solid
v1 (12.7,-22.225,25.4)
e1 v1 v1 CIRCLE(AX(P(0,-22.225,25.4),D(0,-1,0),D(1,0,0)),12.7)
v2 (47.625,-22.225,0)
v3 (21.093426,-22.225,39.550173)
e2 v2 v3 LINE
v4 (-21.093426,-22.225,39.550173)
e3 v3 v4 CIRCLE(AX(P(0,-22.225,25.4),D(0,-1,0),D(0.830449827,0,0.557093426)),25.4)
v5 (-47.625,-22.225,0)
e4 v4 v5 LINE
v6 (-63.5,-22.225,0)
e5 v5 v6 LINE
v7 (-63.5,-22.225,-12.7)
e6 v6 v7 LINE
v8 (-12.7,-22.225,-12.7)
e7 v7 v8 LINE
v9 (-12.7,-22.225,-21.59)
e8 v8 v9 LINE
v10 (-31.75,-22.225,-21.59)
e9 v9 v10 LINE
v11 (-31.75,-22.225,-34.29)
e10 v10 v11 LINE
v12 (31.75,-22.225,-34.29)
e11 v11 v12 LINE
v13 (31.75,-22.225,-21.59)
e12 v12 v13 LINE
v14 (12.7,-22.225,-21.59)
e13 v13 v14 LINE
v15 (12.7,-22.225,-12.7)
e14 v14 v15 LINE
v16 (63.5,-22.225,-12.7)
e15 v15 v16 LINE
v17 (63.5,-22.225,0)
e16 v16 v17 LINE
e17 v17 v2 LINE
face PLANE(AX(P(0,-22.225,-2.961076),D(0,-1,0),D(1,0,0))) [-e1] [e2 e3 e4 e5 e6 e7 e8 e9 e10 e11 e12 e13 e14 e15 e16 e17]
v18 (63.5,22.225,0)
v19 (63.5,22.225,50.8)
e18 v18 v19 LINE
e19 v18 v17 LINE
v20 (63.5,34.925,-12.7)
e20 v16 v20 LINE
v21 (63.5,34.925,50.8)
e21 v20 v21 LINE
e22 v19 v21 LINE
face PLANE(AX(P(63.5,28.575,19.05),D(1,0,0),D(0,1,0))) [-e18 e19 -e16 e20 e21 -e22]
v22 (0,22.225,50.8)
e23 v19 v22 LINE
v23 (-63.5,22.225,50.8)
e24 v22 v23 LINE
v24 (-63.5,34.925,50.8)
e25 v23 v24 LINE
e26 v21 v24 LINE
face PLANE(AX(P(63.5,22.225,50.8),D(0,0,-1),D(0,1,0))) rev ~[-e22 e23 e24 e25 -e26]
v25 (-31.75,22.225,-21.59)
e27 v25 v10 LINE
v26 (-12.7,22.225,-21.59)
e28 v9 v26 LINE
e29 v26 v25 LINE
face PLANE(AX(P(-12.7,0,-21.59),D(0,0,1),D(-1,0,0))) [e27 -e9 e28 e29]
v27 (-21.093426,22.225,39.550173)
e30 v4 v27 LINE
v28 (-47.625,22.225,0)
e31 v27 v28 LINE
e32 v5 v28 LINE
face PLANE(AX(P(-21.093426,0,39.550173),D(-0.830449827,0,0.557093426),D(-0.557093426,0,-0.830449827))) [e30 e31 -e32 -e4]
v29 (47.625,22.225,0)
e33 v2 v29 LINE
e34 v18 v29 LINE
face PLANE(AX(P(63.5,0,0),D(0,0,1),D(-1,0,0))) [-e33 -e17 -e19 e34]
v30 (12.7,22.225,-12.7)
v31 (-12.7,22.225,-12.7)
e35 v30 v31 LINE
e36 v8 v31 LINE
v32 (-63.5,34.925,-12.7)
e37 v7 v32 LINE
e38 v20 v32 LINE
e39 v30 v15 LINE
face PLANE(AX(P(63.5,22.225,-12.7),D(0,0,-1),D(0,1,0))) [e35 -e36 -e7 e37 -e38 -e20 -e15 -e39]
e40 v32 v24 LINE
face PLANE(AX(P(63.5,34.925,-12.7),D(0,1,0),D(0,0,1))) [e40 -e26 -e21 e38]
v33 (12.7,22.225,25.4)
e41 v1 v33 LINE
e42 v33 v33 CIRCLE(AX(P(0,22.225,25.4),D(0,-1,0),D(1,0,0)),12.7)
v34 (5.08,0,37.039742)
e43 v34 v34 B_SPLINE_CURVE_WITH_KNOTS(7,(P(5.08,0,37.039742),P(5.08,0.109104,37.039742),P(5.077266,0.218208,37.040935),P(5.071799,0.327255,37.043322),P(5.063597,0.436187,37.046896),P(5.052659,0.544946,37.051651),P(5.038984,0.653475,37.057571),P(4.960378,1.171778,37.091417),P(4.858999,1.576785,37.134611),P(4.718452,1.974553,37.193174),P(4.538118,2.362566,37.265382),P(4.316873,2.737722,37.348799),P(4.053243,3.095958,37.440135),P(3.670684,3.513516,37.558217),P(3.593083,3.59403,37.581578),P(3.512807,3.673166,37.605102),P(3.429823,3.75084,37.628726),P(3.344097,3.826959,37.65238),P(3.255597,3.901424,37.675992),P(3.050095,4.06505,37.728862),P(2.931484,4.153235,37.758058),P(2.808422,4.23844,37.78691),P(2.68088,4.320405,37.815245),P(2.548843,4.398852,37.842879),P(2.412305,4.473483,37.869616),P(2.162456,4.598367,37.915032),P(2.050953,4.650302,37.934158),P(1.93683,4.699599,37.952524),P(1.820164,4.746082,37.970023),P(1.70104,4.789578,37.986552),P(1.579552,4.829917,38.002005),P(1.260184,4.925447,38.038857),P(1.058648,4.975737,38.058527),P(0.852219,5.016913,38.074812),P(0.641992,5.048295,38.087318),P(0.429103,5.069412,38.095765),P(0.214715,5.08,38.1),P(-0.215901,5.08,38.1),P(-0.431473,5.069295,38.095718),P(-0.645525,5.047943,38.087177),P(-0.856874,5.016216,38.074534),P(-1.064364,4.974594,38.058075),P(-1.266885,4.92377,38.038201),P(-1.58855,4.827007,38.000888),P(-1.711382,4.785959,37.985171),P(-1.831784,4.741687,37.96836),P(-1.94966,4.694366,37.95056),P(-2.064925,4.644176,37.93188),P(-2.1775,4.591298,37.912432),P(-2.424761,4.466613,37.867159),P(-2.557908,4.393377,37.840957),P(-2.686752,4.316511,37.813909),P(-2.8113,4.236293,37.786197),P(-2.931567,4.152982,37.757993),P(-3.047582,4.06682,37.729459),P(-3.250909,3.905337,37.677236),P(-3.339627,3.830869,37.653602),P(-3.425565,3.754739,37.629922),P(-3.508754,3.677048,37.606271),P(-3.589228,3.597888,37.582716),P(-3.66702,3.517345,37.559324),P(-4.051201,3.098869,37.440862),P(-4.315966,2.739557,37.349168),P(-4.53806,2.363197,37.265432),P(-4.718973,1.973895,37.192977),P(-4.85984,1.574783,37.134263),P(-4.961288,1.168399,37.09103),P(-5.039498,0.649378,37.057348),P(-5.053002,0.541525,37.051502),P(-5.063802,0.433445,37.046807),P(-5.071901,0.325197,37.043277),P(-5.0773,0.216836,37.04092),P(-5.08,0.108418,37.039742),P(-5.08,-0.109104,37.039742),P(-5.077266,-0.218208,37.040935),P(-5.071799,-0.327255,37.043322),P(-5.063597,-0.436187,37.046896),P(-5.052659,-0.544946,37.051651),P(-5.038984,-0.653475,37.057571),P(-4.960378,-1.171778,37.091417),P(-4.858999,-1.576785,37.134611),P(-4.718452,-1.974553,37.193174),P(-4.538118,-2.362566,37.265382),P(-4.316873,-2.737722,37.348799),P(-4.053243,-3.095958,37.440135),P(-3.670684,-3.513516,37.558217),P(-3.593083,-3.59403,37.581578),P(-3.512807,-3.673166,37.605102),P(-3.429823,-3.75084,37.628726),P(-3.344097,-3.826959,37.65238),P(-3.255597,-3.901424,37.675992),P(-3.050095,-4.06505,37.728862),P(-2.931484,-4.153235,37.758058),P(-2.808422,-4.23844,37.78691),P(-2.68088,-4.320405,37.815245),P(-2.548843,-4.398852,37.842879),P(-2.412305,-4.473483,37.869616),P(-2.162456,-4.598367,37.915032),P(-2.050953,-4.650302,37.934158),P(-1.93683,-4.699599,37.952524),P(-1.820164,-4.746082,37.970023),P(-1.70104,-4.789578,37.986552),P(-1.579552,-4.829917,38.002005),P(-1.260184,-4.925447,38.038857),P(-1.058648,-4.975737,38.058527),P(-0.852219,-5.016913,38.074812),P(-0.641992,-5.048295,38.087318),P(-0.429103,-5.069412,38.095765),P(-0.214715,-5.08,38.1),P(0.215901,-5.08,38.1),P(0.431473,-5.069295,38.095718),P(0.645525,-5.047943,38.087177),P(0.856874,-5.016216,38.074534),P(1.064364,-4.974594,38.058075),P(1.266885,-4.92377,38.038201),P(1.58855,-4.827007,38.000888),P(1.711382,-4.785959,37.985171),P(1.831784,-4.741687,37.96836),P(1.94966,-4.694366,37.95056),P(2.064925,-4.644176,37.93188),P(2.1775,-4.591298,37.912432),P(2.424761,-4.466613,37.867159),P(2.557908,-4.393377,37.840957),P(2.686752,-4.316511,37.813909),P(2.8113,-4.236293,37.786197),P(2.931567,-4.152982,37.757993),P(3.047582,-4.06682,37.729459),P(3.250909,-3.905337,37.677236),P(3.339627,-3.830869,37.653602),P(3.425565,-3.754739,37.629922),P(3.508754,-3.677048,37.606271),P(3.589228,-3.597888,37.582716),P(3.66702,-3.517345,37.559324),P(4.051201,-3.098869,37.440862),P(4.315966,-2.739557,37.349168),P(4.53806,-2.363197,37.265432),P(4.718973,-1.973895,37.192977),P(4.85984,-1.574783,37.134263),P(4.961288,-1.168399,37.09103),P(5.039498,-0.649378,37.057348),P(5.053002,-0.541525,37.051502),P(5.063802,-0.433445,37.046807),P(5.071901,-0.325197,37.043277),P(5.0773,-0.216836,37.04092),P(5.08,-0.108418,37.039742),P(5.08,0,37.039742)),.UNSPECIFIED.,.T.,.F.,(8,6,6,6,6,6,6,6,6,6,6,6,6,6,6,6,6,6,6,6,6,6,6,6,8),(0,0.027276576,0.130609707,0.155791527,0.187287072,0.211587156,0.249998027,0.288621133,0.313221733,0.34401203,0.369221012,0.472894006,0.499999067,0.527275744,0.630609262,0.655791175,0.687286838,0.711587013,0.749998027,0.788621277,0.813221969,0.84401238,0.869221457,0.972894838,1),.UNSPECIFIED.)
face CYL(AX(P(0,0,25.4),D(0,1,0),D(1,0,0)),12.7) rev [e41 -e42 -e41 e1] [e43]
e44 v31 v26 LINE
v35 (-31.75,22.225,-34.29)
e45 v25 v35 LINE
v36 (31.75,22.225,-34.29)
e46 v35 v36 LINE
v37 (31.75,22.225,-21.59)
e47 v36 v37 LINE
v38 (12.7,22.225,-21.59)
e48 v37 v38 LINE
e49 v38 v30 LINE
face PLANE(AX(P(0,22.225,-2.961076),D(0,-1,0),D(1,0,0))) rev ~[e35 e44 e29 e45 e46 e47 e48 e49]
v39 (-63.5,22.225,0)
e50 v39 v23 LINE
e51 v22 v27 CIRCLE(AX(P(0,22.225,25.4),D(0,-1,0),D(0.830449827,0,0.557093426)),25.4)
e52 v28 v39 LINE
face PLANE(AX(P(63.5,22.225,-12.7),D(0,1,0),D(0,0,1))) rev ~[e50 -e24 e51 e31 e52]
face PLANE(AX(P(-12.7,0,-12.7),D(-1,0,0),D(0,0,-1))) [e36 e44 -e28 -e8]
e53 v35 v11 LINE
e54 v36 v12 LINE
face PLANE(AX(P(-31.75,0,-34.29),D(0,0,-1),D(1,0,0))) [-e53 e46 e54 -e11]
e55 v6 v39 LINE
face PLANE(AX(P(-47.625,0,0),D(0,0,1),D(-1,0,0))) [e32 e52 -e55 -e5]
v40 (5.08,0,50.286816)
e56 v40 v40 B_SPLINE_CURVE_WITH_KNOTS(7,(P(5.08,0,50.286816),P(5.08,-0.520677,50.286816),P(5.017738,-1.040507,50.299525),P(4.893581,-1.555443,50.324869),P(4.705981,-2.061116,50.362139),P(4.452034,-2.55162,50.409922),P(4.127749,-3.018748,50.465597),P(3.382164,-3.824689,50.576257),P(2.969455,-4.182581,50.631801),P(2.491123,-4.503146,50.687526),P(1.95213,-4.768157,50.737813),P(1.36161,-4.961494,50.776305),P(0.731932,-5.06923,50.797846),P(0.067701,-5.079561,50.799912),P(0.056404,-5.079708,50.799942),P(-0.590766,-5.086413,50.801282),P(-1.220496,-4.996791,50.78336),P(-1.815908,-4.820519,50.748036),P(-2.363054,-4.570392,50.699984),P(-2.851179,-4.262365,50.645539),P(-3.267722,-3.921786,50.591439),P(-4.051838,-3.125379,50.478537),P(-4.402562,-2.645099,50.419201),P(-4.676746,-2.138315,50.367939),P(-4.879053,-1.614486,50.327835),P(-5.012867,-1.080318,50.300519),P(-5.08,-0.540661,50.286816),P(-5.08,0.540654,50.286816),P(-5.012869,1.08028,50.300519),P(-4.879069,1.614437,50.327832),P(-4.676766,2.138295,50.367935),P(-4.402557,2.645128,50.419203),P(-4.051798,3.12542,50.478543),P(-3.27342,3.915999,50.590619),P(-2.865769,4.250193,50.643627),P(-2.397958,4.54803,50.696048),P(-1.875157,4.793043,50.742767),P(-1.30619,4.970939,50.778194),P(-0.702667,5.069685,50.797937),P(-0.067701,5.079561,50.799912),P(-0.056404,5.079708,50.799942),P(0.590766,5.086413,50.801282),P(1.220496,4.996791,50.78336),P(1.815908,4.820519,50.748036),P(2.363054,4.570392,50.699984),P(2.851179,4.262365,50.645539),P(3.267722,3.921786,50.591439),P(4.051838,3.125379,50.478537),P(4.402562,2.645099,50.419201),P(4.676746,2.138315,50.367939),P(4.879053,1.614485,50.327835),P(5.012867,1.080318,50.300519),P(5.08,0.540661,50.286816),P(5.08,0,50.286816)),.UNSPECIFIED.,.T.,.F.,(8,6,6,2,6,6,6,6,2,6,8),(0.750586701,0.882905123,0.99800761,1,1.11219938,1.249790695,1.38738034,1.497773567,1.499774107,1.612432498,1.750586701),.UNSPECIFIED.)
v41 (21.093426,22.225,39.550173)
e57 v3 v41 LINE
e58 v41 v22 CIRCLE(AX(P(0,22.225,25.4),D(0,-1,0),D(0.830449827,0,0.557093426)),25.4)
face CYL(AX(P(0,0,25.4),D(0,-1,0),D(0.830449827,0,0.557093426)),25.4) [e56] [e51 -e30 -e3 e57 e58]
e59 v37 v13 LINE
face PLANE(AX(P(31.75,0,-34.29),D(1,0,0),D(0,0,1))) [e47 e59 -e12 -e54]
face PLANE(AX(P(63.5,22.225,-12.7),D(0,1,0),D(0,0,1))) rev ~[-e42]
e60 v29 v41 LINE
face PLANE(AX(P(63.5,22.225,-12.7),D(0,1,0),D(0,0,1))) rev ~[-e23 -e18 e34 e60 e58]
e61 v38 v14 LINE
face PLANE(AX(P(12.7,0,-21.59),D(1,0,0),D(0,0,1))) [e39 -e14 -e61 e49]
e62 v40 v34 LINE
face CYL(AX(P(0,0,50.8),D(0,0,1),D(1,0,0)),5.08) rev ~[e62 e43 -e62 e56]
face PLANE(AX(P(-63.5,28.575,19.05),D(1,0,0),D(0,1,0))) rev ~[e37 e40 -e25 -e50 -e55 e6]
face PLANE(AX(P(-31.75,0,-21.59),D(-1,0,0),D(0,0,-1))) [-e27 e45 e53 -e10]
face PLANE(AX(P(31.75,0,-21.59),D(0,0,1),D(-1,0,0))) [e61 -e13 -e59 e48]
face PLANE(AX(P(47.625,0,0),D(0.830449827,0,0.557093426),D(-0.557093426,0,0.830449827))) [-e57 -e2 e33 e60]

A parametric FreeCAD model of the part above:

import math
import FreeCAD as App
import Part
import Sketcher
Q = App.Units.Quantity

doc = App.newDocument("Part")
params = doc.addObject("Spreadsheet::Sheet", "Params")
for row, (alias, value) in enumerate([
    ("sketch1_diameter", "1 in"),
    ("sketch1_radius", "1 in"),
    ("sketch1_width", "2 in"),
    ("sketch1_width2", "2.5 in"),
    ("sketch1_height", "0.5 in"),
    ("pad1_length", "1.75 in"),
    ("sketch2_width", "0.5 in"),
    ("sketch2_height", "2.5 in"),
    ("pad2_length", "5 in"),
    ("sketch3_diameter", "0.4 in"),
    ("pocket1_length", "13.761258 mm"),
], start=1):
    params.set(f"A{row}", alias)
    params.set(f"B{row}", "=" + value)
    params.setAlias(f"B{row}", alias)

body = doc.addObject("PartDesign::Body", "Body")

sketch1 = body.newObject("Sketcher::SketchObject", "Sketch")
sketch1.AttachmentSupport = (doc.getObject("XZ_Plane"), [""])
sketch1.MapMode = "FlatFace"
sketch1.addGeometry(Part.LineSegment(App.Vector(-12.7, -21.59, 0), App.Vector(-31.75, -21.59, 0)), False)
sketch1.addGeometry(Part.LineSegment(App.Vector(-31.75, -21.59, 0), App.Vector(-31.75, -34.29, 0)), False)
sketch1.addGeometry(Part.LineSegment(App.Vector(-31.75, -34.29, 0), App.Vector(31.75, -34.29, 0)), False)
sketch1.addGeometry(Part.LineSegment(App.Vector(31.75, -34.29, 0), App.Vector(31.75, -21.59, 0)), False)
sketch1.addGeometry(Part.LineSegment(App.Vector(31.75, -21.59, 0), App.Vector(12.7, -21.59, 0)), False)
sketch1.addGeometry(Part.LineSegment(App.Vector(12.7, -21.59, 0), App.Vector(12.7, -12.7, 0)), False)
sketch1.addGeometry(Part.LineSegment(App.Vector(12.7, -12.7, 0), App.Vector(63.5, -12.7, 0)), False)
sketch1.addGeometry(Part.LineSegment(App.Vector(63.5, -12.7, 0), App.Vector(63.5, 0, 0)), False)
sketch1.addGeometry(Part.LineSegment(App.Vector(63.5, 0, 0), App.Vector(47.625, 0, 0)), False)
sketch1.addGeometry(Part.LineSegment(App.Vector(47.625, 0, 0), App.Vector(21.093426, 39.550173, 0)), False)
sketch1.addGeometry(Part.ArcOfCircle(Part.Circle(App.Vector(0, 25.4, 0), App.Vector(0, 0, 1), 25.4), math.radians(33.855026), math.radians(146.144974)), False)
sketch1.addGeometry(Part.LineSegment(App.Vector(-21.093426, 39.550173, 0), App.Vector(-47.625, 0, 0)), False)
sketch1.addGeometry(Part.LineSegment(App.Vector(-47.625, 0, 0), App.Vector(-63.5, 0, 0)), False)
sketch1.addGeometry(Part.LineSegment(App.Vector(-63.5, 0, 0), App.Vector(-63.5, -12.7, 0)), False)
sketch1.addGeometry(Part.LineSegment(App.Vector(-63.5, -12.7, 0), App.Vector(-12.7, -12.7, 0)), False)
sketch1.addGeometry(Part.LineSegment(App.Vector(-12.7, -12.7, 0), App.Vector(-12.7, -21.59, 0)), False)
sketch1.addGeometry(Part.Circle(App.Vector(0, 25.4, 0), App.Vector(0, 0, 1), 12.7), False)
sketch1.addConstraint(Sketcher.Constraint("Coincident", 0, 2, 1, 1))
sketch1.addConstraint(Sketcher.Constraint("Coincident", 1, 2, 2, 1))
sketch1.addConstraint(Sketcher.Constraint("Coincident", 2, 2, 3, 1))
sketch1.addConstraint(Sketcher.Constraint("Coincident", 3, 2, 4, 1))
sketch1.addConstraint(Sketcher.Constraint("Coincident", 4, 2, 5, 1))
sketch1.addConstraint(Sketcher.Constraint("Coincident", 5, 2, 6, 1))
sketch1.addConstraint(Sketcher.Constraint("Coincident", 6, 2, 7, 1))
sketch1.addConstraint(Sketcher.Constraint("Coincident", 7, 2, 8, 1))
sketch1.addConstraint(Sketcher.Constraint("Coincident", 8, 2, 9, 1))
sketch1.addConstraint(Sketcher.Constraint("Tangent", 9, 2, 10, 1))
sketch1.addConstraint(Sketcher.Constraint("Tangent", 10, 2, 11, 1))
sketch1.addConstraint(Sketcher.Constraint("Coincident", 11, 2, 12, 1))
sketch1.addConstraint(Sketcher.Constraint("Coincident", 12, 2, 13, 1))
sketch1.addConstraint(Sketcher.Constraint("Coincident", 13, 2, 14, 1))
sketch1.addConstraint(Sketcher.Constraint("Coincident", 14, 2, 15, 1))
sketch1.addConstraint(Sketcher.Constraint("Coincident", 15, 2, 0, 1))
sketch1.addConstraint(Sketcher.Constraint("Horizontal", 0))
sketch1.addConstraint(Sketcher.Constraint("Vertical", 1))
sketch1.addConstraint(Sketcher.Constraint("Horizontal", 2))
sketch1.addConstraint(Sketcher.Constraint("Vertical", 3))
sketch1.addConstraint(Sketcher.Constraint("Horizontal", 4))
sketch1.addConstraint(Sketcher.Constraint("Vertical", 5))
sketch1.addConstraint(Sketcher.Constraint("Horizontal", 6))
sketch1.addConstraint(Sketcher.Constraint("Vertical", 7))
sketch1.addConstraint(Sketcher.Constraint("Horizontal", 8))
sketch1.addConstraint(Sketcher.Constraint("Horizontal", 12))
sketch1.addConstraint(Sketcher.Constraint("Vertical", 13))
sketch1.addConstraint(Sketcher.Constraint("Horizontal", 14))
sketch1.addConstraint(Sketcher.Constraint("Vertical", 15))
sketch1.addConstraint(Sketcher.Constraint("Coincident", 16, 3, 10, 3))
sketch1.addConstraint(Sketcher.Constraint("Symmetric", 8, 2, 11, 2, -1, 1))
sketch1.addConstraint(Sketcher.Constraint("Symmetric", 0, 2, 3, 2, -2))
sketch1.addConstraint(Sketcher.Constraint("Symmetric", 9, 2, 10, 2, -2))
sketch1.addConstraint(Sketcher.Constraint("Symmetric", 6, 2, 13, 2, -2))
sketch1.addConstraint(Sketcher.Constraint("Equal", 0, 4))
sketch1.addConstraint(Sketcher.Constraint("Equal", 3, 7))
sketch1.addConstraint(Sketcher.Constraint("Diameter", 16, Q("1 in")))
sketch1.addConstraint(Sketcher.Constraint("Radius", 10, Q("1 in")))
sketch1.addConstraint(Sketcher.Constraint("DistanceX", 6, 1, 6, 2, Q("2 in")))
sketch1.addConstraint(Sketcher.Constraint("DistanceX", 2, 1, 2, 2, Q("2.5 in")))
sketch1.addConstraint(Sketcher.Constraint("DistanceY", 1, 2, 1, 1, Q("0.5 in")))
sketch1.addConstraint(Sketcher.Constraint("DistanceY", -1, 1, 10, 3, Q("1 in")))
sketch1.addConstraint(Sketcher.Constraint("DistanceX", 14, 2, 5, 2, Q("1 in")))
sketch1.addConstraint(Sketcher.Constraint("DistanceY", 5, 1, 5, 2, Q("0.35 in")))
sketch1.addConstraint(Sketcher.Constraint("DistanceX", 8, 2, 8, 1, Q("0.625 in")))
sketch1.setExpression("Constraints[36]", "Params.sketch1_diameter")
sketch1.setExpression("Constraints[37]", "Params.sketch1_radius")
sketch1.setExpression("Constraints[38]", "Params.sketch1_width")
sketch1.setExpression("Constraints[39]", "Params.sketch1_width2")
sketch1.setExpression("Constraints[40]", "Params.sketch1_height")
pad1 = body.newObject("PartDesign::Pad", "Pad")
pad1.Profile = sketch1
pad1.setExpression("Length", "Params.pad1_length")
pad1.Midplane = True

sketch2 = body.newObject("Sketcher::SketchObject", "Sketch001")
sketch2.AttachmentSupport = (doc.getObject("YZ_Plane"), [""])
sketch2.MapMode = "FlatFace"
sketch2.AttachmentOffset = App.Placement(App.Vector(0, 0, 2.5 * 25.4), App.Rotation())
sketch2.addGeometry(Part.LineSegment(App.Vector(22.225, 50.8, 0), App.Vector(22.225, -12.7, 0)), False)
sketch2.addGeometry(Part.LineSegment(App.Vector(22.225, -12.7, 0), App.Vector(34.925, -12.7, 0)), False)
sketch2.addGeometry(Part.LineSegment(App.Vector(34.925, -12.7, 0), App.Vector(34.925, 50.8, 0)), False)
sketch2.addGeometry(Part.LineSegment(App.Vector(34.925, 50.8, 0), App.Vector(22.225, 50.8, 0)), False)
sketch2.addConstraint(Sketcher.Constraint("Coincident", 0, 2, 1, 1))
sketch2.addConstraint(Sketcher.Constraint("Coincident", 1, 2, 2, 1))
sketch2.addConstraint(Sketcher.Constraint("Coincident", 2, 2, 3, 1))
sketch2.addConstraint(Sketcher.Constraint("Coincident", 3, 2, 0, 1))
sketch2.addConstraint(Sketcher.Constraint("Vertical", 0))
sketch2.addConstraint(Sketcher.Constraint("Horizontal", 1))
sketch2.addConstraint(Sketcher.Constraint("Vertical", 2))
sketch2.addConstraint(Sketcher.Constraint("Horizontal", 3))
sketch2.addConstraint(Sketcher.Constraint("DistanceX", 1, 1, 1, 2, Q("0.5 in")))
sketch2.addConstraint(Sketcher.Constraint("DistanceY", 0, 2, 0, 1, Q("2.5 in")))
sketch2.addConstraint(Sketcher.Constraint("DistanceY", -1, 1, 2, 2, Q("2 in")))
sketch2.addConstraint(Sketcher.Constraint("DistanceX", -1, 1, 0, 2, Q("0.875 in")))
sketch2.setExpression("Constraints[8]", "Params.sketch2_width")
sketch2.setExpression("Constraints[9]", "Params.sketch2_height")
pad2 = body.newObject("PartDesign::Pad", "Pad001")
pad2.Profile = sketch2
pad2.setExpression("Length", "Params.pad2_length")
pad2.Reversed = True

sketch3 = body.newObject("Sketcher::SketchObject", "Sketch002")
sketch3.AttachmentSupport = (doc.getObject("XY_Plane"), [""])
sketch3.MapMode = "FlatFace"
sketch3.AttachmentOffset = App.Placement(App.Vector(0, 0, 2 * 25.4), App.Rotation())
sketch3.addGeometry(Part.Circle(App.Vector(0, 0, 0), App.Vector(0, 0, 1), 5.08), False)
sketch3.addConstraint(Sketcher.Constraint("Coincident", 0, 3, -1, 1))
sketch3.addConstraint(Sketcher.Constraint("Diameter", 0, Q("0.4 in")))
sketch3.setExpression("Constraints[1]", "Params.sketch3_diameter")
pocket1 = body.newObject("PartDesign::Pocket", "Pocket")
pocket1.Profile = sketch3
pocket1.setExpression("Length", "Params.pocket1_length")

doc.recompute()
